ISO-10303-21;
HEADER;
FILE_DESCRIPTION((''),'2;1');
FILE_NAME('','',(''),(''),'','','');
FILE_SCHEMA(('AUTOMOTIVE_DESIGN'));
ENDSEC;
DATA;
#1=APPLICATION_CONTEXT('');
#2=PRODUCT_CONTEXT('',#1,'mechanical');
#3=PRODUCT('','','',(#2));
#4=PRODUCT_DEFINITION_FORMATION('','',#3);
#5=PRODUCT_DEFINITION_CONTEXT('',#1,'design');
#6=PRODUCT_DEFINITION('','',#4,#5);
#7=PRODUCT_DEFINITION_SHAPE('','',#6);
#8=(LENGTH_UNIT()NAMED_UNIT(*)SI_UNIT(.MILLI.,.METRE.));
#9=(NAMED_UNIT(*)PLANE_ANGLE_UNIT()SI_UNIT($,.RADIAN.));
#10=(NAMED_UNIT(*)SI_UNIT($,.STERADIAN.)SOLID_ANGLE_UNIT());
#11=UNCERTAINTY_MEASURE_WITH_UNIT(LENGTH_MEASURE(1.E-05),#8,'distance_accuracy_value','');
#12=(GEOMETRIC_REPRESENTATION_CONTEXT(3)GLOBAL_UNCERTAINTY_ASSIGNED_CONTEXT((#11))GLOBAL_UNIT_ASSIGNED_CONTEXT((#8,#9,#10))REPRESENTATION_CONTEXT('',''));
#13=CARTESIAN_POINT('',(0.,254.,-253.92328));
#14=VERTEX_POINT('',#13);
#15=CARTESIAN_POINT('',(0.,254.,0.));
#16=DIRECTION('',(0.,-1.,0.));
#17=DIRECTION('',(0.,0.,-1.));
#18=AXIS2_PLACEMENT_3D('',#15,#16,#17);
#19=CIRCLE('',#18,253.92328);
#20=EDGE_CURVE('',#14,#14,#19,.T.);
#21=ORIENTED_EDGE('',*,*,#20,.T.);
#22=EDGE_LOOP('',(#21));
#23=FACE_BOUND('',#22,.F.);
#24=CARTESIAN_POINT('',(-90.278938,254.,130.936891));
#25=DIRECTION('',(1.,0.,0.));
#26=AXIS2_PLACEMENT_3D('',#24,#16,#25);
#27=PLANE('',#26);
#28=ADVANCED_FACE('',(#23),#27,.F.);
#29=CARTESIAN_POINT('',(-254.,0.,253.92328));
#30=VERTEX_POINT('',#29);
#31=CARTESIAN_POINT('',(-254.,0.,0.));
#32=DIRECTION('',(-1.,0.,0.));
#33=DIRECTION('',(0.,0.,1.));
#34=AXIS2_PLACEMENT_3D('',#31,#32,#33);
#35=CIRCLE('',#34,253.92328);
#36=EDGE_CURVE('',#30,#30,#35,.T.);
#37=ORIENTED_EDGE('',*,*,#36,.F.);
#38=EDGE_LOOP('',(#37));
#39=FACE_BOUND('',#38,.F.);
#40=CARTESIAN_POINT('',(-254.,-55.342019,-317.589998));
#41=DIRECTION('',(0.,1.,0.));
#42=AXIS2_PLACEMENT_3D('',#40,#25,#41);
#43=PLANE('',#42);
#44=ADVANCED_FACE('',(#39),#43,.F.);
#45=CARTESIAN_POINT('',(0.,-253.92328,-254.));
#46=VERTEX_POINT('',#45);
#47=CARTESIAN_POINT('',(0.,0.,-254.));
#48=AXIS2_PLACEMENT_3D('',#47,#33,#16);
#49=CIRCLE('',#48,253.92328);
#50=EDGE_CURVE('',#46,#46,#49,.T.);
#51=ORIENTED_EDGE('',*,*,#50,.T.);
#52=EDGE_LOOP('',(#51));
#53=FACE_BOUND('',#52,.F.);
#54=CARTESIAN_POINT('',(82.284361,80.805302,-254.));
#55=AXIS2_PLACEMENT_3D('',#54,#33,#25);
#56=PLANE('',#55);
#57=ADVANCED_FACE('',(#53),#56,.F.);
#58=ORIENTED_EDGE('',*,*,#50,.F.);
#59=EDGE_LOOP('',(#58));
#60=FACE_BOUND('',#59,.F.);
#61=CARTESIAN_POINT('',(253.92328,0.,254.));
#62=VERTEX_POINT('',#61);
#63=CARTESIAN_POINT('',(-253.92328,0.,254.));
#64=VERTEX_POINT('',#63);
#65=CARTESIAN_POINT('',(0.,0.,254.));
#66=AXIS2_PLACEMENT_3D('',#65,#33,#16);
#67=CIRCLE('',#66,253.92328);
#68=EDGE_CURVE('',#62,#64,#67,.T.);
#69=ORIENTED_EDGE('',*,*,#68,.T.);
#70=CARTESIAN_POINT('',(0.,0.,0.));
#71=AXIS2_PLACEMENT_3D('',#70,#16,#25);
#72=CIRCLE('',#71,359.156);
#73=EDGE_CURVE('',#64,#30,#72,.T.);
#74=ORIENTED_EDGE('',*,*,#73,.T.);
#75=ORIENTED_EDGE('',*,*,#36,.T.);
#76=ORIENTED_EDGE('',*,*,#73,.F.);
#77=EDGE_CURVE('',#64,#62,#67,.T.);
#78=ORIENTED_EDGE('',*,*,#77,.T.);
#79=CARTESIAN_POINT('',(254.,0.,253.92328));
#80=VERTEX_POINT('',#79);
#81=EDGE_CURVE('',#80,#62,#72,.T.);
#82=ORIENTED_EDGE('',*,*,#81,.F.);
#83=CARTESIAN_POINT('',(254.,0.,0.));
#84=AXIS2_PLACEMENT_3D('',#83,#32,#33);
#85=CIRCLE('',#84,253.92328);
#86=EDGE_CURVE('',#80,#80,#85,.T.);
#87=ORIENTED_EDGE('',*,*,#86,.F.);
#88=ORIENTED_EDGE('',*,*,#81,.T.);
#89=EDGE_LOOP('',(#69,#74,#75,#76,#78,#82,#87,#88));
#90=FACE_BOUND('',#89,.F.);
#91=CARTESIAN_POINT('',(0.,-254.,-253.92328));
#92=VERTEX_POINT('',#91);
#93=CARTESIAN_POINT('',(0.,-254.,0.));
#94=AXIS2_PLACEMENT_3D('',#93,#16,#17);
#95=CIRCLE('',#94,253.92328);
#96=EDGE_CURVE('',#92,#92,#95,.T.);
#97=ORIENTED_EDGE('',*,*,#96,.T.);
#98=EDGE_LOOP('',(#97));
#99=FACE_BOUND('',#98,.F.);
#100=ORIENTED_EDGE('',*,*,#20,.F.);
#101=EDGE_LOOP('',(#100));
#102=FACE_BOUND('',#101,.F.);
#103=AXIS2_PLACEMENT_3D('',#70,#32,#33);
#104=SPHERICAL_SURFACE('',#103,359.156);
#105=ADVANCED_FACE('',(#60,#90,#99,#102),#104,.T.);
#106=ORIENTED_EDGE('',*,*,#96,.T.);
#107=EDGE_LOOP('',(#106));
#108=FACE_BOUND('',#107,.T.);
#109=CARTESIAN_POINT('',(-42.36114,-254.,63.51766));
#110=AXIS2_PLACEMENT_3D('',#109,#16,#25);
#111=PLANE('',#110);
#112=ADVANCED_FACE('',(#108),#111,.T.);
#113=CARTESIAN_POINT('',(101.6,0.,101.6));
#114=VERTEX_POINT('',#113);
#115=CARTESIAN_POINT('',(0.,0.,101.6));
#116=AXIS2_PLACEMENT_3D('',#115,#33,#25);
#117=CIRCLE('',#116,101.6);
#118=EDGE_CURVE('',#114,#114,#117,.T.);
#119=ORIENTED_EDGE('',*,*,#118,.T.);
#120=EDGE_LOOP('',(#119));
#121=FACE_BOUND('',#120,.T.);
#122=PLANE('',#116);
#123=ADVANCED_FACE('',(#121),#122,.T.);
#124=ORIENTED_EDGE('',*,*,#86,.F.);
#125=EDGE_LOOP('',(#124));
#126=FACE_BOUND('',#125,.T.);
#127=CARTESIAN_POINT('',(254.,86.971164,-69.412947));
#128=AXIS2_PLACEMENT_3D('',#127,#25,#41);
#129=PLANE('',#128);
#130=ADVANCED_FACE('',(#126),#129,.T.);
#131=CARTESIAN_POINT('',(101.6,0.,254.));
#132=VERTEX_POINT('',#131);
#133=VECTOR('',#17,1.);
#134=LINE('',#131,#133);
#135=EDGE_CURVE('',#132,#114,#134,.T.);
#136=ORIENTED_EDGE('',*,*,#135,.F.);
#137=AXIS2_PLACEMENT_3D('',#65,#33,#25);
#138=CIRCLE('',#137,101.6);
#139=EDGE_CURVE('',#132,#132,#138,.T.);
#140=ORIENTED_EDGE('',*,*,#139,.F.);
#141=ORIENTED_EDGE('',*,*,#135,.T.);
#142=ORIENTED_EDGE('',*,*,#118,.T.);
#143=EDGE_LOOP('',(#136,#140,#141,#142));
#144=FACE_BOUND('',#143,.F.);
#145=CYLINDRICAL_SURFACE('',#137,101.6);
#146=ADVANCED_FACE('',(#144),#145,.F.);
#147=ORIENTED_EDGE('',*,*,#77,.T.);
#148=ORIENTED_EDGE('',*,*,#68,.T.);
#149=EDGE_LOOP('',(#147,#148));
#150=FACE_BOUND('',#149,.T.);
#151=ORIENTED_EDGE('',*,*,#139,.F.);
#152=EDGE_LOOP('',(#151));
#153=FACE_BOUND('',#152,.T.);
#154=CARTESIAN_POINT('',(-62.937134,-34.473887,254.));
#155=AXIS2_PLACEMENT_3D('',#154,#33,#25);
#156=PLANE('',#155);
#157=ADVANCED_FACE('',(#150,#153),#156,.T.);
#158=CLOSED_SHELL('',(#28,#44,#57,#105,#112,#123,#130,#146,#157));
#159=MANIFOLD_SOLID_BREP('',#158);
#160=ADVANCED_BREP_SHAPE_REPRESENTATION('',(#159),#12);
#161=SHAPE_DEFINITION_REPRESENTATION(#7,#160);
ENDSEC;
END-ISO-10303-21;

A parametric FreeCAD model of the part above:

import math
import FreeCAD as App
import Part
import Sketcher

V = App.Vector
Q = App.Units.Quantity


def add_polygon(sketch, points):
    """Adds a closed chain of lines whose ends are joined by coincident constraints."""
    first, n = sketch.GeometryCount, len(points)
    for a, b in zip(points, points[1:] + points[:1]):
        sketch.addGeometry(Part.LineSegment(App.Vector(*a, 0), App.Vector(*b, 0)), False)
    for i in range(n):
        sketch.addConstraint(Sketcher.Constraint("Coincident", first + i, 2, first + (i + 1) % n, 1))

doc = App.newDocument("Part")
body = doc.addObject("PartDesign::Body", "Body")

sketch1 = body.newObject("Sketcher::SketchObject", "Sketch")
sketch1.AttachmentSupport = (doc.getObject("XZ_Plane"), [""])
sketch1.MapMode = "FlatFace"
sketch1.addGeometry([
    Part.LineSegment(V(-359, 0, 0), V(359, 0, 0)),
    Part.ArcOfCircle(Part.Circle(V(0, 0, 0), V(0, 0, 1), 359), math.radians(0), math.radians(180)),
], False)
sketch1.addConstraint([
    Sketcher.Constraint("Coincident", 0, 1, 1, 2),
    Sketcher.Constraint("Coincident", 1, 1, 0, 2),
    Sketcher.Constraint("Horizontal", 0),
    Sketcher.Constraint("Coincident", 1, 3, -1, 1),
    Sketcher.Constraint("PointOnObject", 0, 1, -1),
    Sketcher.Constraint("Radius", 1, Q("14.14 in")),
])
revolution = body.newObject("PartDesign::Revolution", "Revolution")
revolution.Profile = sketch1
revolution.ReferenceAxis = (sketch1, ["H_Axis"])
revolution.Angle = 360

sketch2 = body.newObject("Sketcher::SketchObject", "Sketch001")
sketch2.AttachmentSupport = (doc.getObject("XZ_Plane"), [""])
sketch2.MapMode = "FlatFace"
sketch2.AttachmentOffset = App.Placement(V(0, 0, 10 * 25.4), App.Rotation())
add_polygon(sketch2, [(-488, 723), (-488, -596), (403, -596), (403, 723)])
sketch2.addConstraint([
    Sketcher.Constraint("Vertical", 0),
    Sketcher.Constraint("Horizontal", 1),
    Sketcher.Constraint("Vertical", 2),
    Sketcher.Constraint("Horizontal", 3),
    Sketcher.Constraint("DistanceY", 0, 2, -1, 1, Q("596.099198 mm")),
    Sketcher.Constraint("DistanceX", -1, 1, 1, 2, Q("403.005899 mm")),
    Sketcher.Constraint("DistanceX", 1, 1, 1, 2, Q("890.734077 mm")),
    Sketcher.Constraint("DistanceY", 0, 2, 0, 1, Q("1319.233716 mm")),
])
pocket1 = body.newObject("PartDesign::Pocket", "Pocket")
pocket1.Profile = sketch2
pocket1.Length = Q("10 in")
pocket1.Reversed = True

sketch3 = body.newObject("Sketcher::SketchObject", "Sketch002")
sketch3.AttachmentSupport = (doc.getObject("XZ_Plane"), [""])
sketch3.MapMode = "FlatFace"
sketch3.AttachmentOffset = App.Placement(V(0, 0, -10 * 25.4), App.Rotation())
add_polygon(sketch3, [(-596, 776), (-596, -514), (416, -514), (416, 776)])
sketch3.addConstraint([
    Sketcher.Constraint("Vertical", 0),
    Sketcher.Constraint("Horizontal", 1),
    Sketcher.Constraint("Vertical", 2),
    Sketcher.Constraint("Horizontal", 3),
    Sketcher.Constraint("DistanceY", 0, 2, 0, 1, Q("1290.58224 mm")),
    Sketcher.Constraint("DistanceX", 1, 1, 1, 2, Q("1012.359947 mm")),
    Sketcher.Constraint("DistanceX", 0, 2, -1, 1, Q("596.458911 mm")),
    Sketcher.Constraint("DistanceY", 0, 2, -1, 1, Q("514.354229 mm")),
])
pocket2 = body.newObject("PartDesign::Pocket", "Pocket001")
pocket2.Profile = sketch3
pocket2.Length = Q("10 in")

sketch4 = body.newObject("Sketcher::SketchObject", "Sketch003")
sketch4.AttachmentSupport = (doc.getObject("XY_Plane"), [""])
sketch4.MapMode = "FlatFace"
sketch4.AttachmentOffset = App.Placement(V(0, 0, 10 * 25.4), App.Rotation())
add_polygon(sketch4, [(-582, -515), (446, -515), (446, -509), (456, -509), (456, 446), (-582, 446)])
sketch4.addConstraint([
    Sketcher.Constraint("Horizontal", 0),
    Sketcher.Constraint("Vertical", 1),
    Sketcher.Constraint("Horizontal", 2),
    Sketcher.Constraint("Vertical", 3),
    Sketcher.Constraint("Horizontal", 4),
    Sketcher.Constraint("Vertical", 5),
    Sketcher.Constraint("DistanceX", 4, 2, 4, 1, Q("1038.682342 mm")),
    Sketcher.Constraint("DistanceY", 5, 2, 5, 1, Q("961.81193 mm")),
    Sketcher.Constraint("DistanceX", 0, 1, 0, 2, Q("1028.702796 mm")),
    Sketcher.Constraint("DistanceY", 1, 1, 1, 2, Q("6.807923 mm")),
    Sketcher.Constraint("DistanceX", -1, 1, 0, 2, Q("446.441472 mm")),
    Sketcher.Constraint("DistanceY", 1, 2, -1, 1, Q("508.58891 mm")),
])
pocket3 = body.newObject("PartDesign::Pocket", "Pocket002")
pocket3.Profile = sketch4
pocket3.Length = Q("10 in")
pocket3.Reversed = True

sketch5 = body.newObject("Sketcher::SketchObject", "Sketch004")
sketch5.AttachmentSupport = (doc.getObject("XY_Plane"), [""])
sketch5.MapMode = "FlatFace"
sketch5.AttachmentOffset = App.Placement(V(0, 0, -10 * 25.4), App.Rotation())
add_polygon(sketch5, [(-553, 679), (-553, -518), (718, -518), (718, 679)])
sketch5.addConstraint([
    Sketcher.Constraint("Vertical", 0),
    Sketcher.Constraint("Horizontal", 1),
    Sketcher.Constraint("Vertical", 2),
    Sketcher.Constraint("Horizontal", 3),
    Sketcher.Constraint("DistanceX", 1, 1, 1, 2, Q("1270.54733 mm")),
    Sketcher.Constraint("DistanceY", 0, 2, 0, 1, Q("1196.680188 mm")),
    Sketcher.Constraint("DistanceY", 0, 2, -1, 1, Q("517.534792 mm")),
    Sketcher.Constraint("DistanceX", 0, 2, -1, 1, Q("552.989304 mm")),
])
pocket4 = body.newObject("PartDesign::Pocket", "Pocket003")
pocket4.Profile = sketch5
pocket4.Length = Q("10 in")

sketch6 = body.newObject("Sketcher::SketchObject", "Sketch005")
sketch6.AttachmentSupport = (doc.getObject("YZ_Plane"), [""])
sketch6.MapMode = "FlatFace"
sketch6.AttachmentOffset = App.Placement(V(0, 0, -10 * 25.4), App.Rotation())
add_polygon(sketch6, [(-531, 626), (-531, -1262), (420, -1262), (420, 626)])
sketch6.addConstraint([
    Sketcher.Constraint("Vertical", 0),
    Sketcher.Constraint("Horizontal", 1),
    Sketcher.Constraint("Vertical", 2),
    Sketcher.Constraint("Horizontal", 3),
    Sketcher.Constraint("DistanceX", 1, 1, 1, 2, Q("950.985431 mm")),
    Sketcher.Constraint("DistanceY", 0, 2, 0, 1, Q("1887.960911 mm")),
    Sketcher.Constraint("DistanceX", 0, 2, -1, 1, Q("530.834734 mm")),
    Sketcher.Constraint("DistanceY", 0, 2, -1, 1, Q("1261.570453 mm")),
])
pocket5 = body.newObject("PartDesign::Pocket", "Pocket004")
pocket5.Profile = sketch6
pocket5.Length = Q("10 in")

sketch7 = body.newObject("Sketcher::SketchObject", "Sketch006")
sketch7.AttachmentSupport = (doc.getObject("YZ_Plane"), [""])
sketch7.MapMode = "FlatFace"
sketch7.AttachmentOffset = App.Placement(V(0, 0, 10 * 25.4), App.Rotation())
add_polygon(sketch7, [(-463, 1110), (-463, -1249), (637, -1249), (637, 1110)])
sketch7.addConstraint([
    Sketcher.Constraint("Vertical", 0),
    Sketcher.Constraint("Horizontal", 1),
    Sketcher.Constraint("Vertical", 2),
    Sketcher.Constraint("Horizontal", 3),
    Sketcher.Constraint("DistanceX", 1, 1, 1, 2, Q("1099.208593 mm")),
    Sketcher.Constraint("DistanceY", 0, 2, 0, 1, Q("2359.348774 mm")),
    Sketcher.Constraint("DistanceX", -1, 1, 1, 2, Q("636.57546 mm")),
    Sketcher.Constraint("DistanceY", -1, 1, 2, 2, Q("1110.26144 mm")),
])
pocket6 = body.newObject("PartDesign::Pocket", "Pocket005")
pocket6.Profile = sketch7
pocket6.Length = Q("10 in")
pocket6.Reversed = True

sketch8 = body.newObject("Sketcher::SketchObject", "Sketch007")
sketch8.AttachmentSupport = (doc.getObject("XY_Plane"), [""])
sketch8.MapMode = "FlatFace"
sketch8.AttachmentOffset = App.Placement(V(0, 0, 10 * 25.4), App.Rotation())
sketch8.addGeometry(Part.Circle(V(0, 0, 0), V(0, 0, 1), 102), False)
sketch8.addConstraint([
    Sketcher.Constraint("Coincident", 0, 3, -1, 1),
    Sketcher.Constraint("Diameter", 0, Q("8 in")),
])
pocket7 = body.newObject("PartDesign::Pocket", "Pocket006")
pocket7.Profile = sketch8
pocket7.Length = Q("6 in")

doc.recompute()
